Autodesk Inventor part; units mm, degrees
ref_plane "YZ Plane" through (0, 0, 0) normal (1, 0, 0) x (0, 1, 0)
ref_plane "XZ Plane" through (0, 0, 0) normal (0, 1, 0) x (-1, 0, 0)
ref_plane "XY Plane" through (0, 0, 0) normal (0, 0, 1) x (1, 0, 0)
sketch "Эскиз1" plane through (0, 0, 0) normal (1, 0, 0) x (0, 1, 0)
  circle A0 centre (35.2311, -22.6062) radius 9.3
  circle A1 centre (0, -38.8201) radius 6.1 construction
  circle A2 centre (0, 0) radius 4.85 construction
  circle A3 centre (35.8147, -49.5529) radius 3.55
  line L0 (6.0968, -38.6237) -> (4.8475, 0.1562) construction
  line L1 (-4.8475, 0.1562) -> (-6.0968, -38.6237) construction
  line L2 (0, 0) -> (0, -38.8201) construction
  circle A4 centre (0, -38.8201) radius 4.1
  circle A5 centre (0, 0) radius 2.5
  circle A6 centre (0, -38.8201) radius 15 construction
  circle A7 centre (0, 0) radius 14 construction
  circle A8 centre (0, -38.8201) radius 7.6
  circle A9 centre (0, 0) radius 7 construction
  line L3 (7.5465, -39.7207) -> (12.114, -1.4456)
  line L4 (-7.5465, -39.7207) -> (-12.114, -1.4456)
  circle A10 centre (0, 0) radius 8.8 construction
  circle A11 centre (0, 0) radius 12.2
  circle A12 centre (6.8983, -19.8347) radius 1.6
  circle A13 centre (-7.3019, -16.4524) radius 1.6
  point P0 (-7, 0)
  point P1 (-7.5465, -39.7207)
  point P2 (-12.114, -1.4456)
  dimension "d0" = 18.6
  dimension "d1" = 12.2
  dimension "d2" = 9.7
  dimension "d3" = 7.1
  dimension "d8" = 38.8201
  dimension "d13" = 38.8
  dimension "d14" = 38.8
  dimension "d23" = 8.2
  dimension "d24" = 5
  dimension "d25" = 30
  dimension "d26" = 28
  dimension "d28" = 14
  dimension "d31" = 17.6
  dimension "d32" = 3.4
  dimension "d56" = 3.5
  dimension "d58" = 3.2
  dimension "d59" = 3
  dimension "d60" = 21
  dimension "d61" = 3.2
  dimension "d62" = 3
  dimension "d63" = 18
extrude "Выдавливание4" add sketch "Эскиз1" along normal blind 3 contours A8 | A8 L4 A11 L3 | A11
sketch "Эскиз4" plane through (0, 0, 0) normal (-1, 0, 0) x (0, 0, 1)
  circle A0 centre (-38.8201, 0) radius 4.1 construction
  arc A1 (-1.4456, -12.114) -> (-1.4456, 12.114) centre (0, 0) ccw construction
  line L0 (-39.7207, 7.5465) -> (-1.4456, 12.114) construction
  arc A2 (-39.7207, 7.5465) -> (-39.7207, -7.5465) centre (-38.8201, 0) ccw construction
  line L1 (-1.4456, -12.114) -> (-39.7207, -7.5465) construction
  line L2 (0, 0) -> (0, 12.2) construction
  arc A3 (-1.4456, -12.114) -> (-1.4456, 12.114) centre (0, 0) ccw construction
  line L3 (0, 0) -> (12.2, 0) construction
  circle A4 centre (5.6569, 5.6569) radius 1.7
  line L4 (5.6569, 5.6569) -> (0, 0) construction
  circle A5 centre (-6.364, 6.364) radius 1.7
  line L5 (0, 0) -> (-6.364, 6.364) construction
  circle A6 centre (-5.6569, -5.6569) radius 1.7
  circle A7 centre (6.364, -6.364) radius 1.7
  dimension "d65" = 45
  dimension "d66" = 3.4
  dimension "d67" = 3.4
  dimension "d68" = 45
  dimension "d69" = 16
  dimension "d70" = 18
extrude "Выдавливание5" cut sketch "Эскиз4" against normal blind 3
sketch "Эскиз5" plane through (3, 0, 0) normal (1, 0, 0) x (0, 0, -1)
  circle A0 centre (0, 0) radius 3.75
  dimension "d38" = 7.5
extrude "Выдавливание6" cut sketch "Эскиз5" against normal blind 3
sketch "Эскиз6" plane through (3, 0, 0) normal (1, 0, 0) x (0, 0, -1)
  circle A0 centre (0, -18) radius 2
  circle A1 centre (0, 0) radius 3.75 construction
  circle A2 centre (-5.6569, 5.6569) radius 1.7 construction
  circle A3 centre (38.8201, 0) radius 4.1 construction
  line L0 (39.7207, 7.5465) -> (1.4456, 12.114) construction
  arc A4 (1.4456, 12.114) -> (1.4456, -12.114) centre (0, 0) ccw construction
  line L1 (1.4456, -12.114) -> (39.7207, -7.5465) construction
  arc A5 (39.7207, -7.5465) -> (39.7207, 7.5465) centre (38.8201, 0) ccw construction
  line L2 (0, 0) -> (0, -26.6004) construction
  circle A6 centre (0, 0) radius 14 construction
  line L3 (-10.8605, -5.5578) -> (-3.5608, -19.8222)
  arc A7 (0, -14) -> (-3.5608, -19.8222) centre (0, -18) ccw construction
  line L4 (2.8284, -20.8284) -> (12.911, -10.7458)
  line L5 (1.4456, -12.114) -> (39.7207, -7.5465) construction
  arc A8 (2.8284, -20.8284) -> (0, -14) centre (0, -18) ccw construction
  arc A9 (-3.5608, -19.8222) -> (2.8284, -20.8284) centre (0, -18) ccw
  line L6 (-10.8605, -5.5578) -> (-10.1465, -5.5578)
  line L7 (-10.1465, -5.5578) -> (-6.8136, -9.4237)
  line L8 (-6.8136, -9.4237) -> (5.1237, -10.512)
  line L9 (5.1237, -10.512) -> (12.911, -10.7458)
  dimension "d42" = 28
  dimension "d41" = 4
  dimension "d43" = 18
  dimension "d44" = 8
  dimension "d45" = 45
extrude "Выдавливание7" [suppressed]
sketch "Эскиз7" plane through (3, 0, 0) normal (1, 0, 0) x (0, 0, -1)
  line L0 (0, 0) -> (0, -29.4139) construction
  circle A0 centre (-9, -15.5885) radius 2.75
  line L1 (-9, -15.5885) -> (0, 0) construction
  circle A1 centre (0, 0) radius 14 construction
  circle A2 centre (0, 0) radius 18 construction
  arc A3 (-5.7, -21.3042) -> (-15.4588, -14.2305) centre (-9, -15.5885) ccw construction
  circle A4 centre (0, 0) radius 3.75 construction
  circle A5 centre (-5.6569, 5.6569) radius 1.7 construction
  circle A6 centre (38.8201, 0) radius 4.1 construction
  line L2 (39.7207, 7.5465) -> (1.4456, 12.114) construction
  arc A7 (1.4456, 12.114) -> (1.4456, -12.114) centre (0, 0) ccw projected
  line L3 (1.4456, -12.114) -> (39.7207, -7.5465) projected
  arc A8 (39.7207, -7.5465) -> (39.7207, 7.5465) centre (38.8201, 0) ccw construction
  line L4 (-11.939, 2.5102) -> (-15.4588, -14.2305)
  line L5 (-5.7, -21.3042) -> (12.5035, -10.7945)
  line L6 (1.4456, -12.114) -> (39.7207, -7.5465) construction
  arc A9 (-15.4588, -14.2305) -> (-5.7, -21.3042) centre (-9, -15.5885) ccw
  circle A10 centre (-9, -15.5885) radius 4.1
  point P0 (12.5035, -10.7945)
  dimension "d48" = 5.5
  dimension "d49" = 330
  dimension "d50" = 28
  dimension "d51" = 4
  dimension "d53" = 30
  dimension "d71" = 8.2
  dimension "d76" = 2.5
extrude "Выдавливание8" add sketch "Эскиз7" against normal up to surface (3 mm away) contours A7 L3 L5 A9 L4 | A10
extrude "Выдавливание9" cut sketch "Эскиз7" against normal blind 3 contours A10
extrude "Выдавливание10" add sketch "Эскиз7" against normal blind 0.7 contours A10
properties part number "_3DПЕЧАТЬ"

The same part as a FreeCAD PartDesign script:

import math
import FreeCAD as App
import Part
import Sketcher
from FreeCAD import Vector

doc = App.newDocument("Part")
body = doc.addObject("PartDesign::Body", "Body")

# Sketch on YZ plane
sketch1 = body.newObject("Sketcher::SketchObject", "Sketch")
sketch1.AttachmentSupport = (doc.getObject("YZ_Plane"), [""])
sketch1.MapMode = "FlatFace"
sketch1.addGeometry([
    Part.ArcOfCircle(Part.Circle(Vector(0, -38.8, 0), Vector(0, 0, 1), 7.6), math.radians(-173), math.radians(-7)),  # 0
    Part.LineSegment(Vector(7.5, -39.7, 0), Vector(12.1, -1.4, 0)),  # 1
    Part.ArcOfCircle(Part.Circle(Vector(0, 0, 0), Vector(0, 0, 1), 12.2), math.radians(-7), math.radians(187)),  # 2
    Part.LineSegment(Vector(-12.1, -1.4, 0), Vector(-7.5, -39.7, 0)),  # 3
    Part.Circle(Vector(0, -38.8, 0), Vector(0, 0, 1), 4.1),  # 4
    Part.Circle(Vector(-7.3, -16.5, 0), Vector(0, 0, 1), 1.6),  # 5
    Part.Circle(Vector(6.9, -19.8, 0), Vector(0, 0, 1), 1.6),  # 6
    Part.Circle(Vector(0, 0, 0), Vector(0, 0, 1), 2.5),  # 7
], False)
sketch1.addConstraint([
    Sketcher.Constraint("Tangent", 0, 2, 1, 1),
    Sketcher.Constraint("Tangent", 1, 2, 2, 1),
    Sketcher.Constraint("Tangent", 2, 2, 3, 1),
    Sketcher.Constraint("Tangent", 3, 2, 0, 1),
    Sketcher.Constraint("Coincident", 2, 3, -1, 1),
    Sketcher.Constraint("Coincident", 7, 3, -1, 1),
    Sketcher.Constraint("Coincident", 4, 3, 0, 3),
    Sketcher.Constraint("Equal", 5, 6),
    Sketcher.Constraint("PointOnObject", 0, 3, -2),
    Sketcher.Constraint("Diameter", 7, 5.0),
    Sketcher.Constraint("Diameter", 4, 8.2),
    Sketcher.Constraint("Diameter", 5, 3.2),
    Sketcher.Constraint("Radius", 2, 12.2),
    Sketcher.Constraint("Radius", 0, 7.6),
    Sketcher.Constraint("DistanceY", 0, 3, -1, 1, 38.82),
    Sketcher.Constraint("DistanceX", 5, 3, -1, 1, 7.302),
    Sketcher.Constraint("DistanceY", 0, 2, 6, 3, 19.886),
    Sketcher.Constraint("DistanceY", 5, 3, -1, 1, 16.4524),
    Sketcher.Constraint("DistanceX", -1, 1, 6, 3, 6.8983),
])
pad1 = body.newObject("PartDesign::Pad", "Pad")
pad1.Profile = sketch1
pad1.Length = 3

# Sketch on YZ plane
sketch2 = body.newObject("Sketcher::SketchObject", "Sketch001")
sketch2.AttachmentSupport = (doc.getObject("YZ_Plane"), [""])
sketch2.MapMode = "FlatFace"
sketch2.addGeometry([
    Part.Circle(Vector(5.7, 5.7, 0), Vector(0, 0, 1), 1.7),
    Part.Circle(Vector(6.4, -6.4, 0), Vector(0, 0, 1), 1.7),
    Part.Circle(Vector(-5.7, -5.7, 0), Vector(0, 0, 1), 1.7),
    Part.Circle(Vector(-6.4, 6.4, 0), Vector(0, 0, 1), 1.7),
], False)
sketch2.addConstraint([
    Sketcher.Constraint("Equal", 0, 1),
    Sketcher.Constraint("Equal", 1, 2),
    Sketcher.Constraint("Equal", 2, 3),
    Sketcher.Constraint("Symmetric", 0, 3, 2, 3, -1, 1),
    Sketcher.Constraint("Symmetric", 1, 3, 3, 3, -1, 1),
    Sketcher.Constraint("Diameter", 0, 3.4),
    Sketcher.Constraint("DistanceX", -1, 1, 0, 3, 5.657),
    Sketcher.Constraint("DistanceY", -1, 1, 0, 3, 5.657),
    Sketcher.Constraint("DistanceX", -1, 1, 1, 3, 6.364),
    Sketcher.Constraint("DistanceY", 1, 3, -1, 1, 6.364),
])
pocket1 = body.newObject("PartDesign::Pocket", "Pocket")
pocket1.Profile = sketch2
pocket1.Length = 3
pocket1.Reversed = True

# Sketch on YZ plane
sketch3 = body.newObject("Sketcher::SketchObject", "Sketch002")
sketch3.AttachmentSupport = (doc.getObject("YZ_Plane"), [""])
sketch3.MapMode = "FlatFace"
sketch3.AttachmentOffset = App.Placement(Vector(0, 0, 3), App.Rotation())
sketch3.addGeometry(Part.Circle(Vector(0, 0, 0), Vector(0, 0, 1), 3.8), False)
sketch3.addConstraint([
    Sketcher.Constraint("Coincident", 0, 3, -1, 1),
    Sketcher.Constraint("Diameter", 0, 7.5),
])
pocket2 = body.newObject("PartDesign::Pocket", "Pocket001")
pocket2.Profile = sketch3
pocket2.Length = 3

# Sketch on YZ plane
sketch4 = body.newObject("Sketcher::SketchObject", "Sketch003")
sketch4.AttachmentSupport = (doc.getObject("YZ_Plane"), [""])
sketch4.MapMode = "FlatFace"
sketch4.AttachmentOffset = App.Placement(Vector(0, 0, 3), App.Rotation())
sketch4.addGeometry([
    Part.ArcOfCircle(Part.Circle(Vector(0, 0, 0), Vector(0, 0, 1), 12.199949), math.radians(78.126387), math.radians(186.805097)),  # 0
    Part.LineSegment(Vector(2.5102, 11.939, 0), Vector(-14.2305, 15.4588, 0)),  # 1
    Part.ArcOfCircle(Part.Circle(Vector(-15.5885, 9, 0), Vector(0, 0, 1), 6.599941), math.radians(78.126186), math.radians(210.000294)),  # 2
    Part.LineSegment(Vector(-21.3042, 5.7, 0), Vector(-10.7945, -12.5035, 0)),  # 3
    Part.LineSegment(Vector(-10.794424, -12.503491, 0), Vector(-12.114, -1.4456, 0)),  # 4
    Part.Circle(Vector(-15.5885, 9, 0), Vector(0, 0, 1), 2.75),  # 5
], False)
sketch4.addConstraint([
    Sketcher.Constraint("Coincident", 0, 1, 1, 1),
    Sketcher.Constraint("Coincident", 1, 2, 2, 1),
    Sketcher.Constraint("Coincident", 2, 2, 3, 1),
    Sketcher.Constraint("Coincident", 3, 2, 4, 1),
    Sketcher.Constraint("Coincident", 4, 2, 0, 2),
    Sketcher.Constraint("Coincident", 0, 3, -1, 1),
    Sketcher.Constraint("Coincident", 5, 3, 2, 3),
    Sketcher.Constraint("Diameter", 5, 5.5),
    Sketcher.Constraint("Radius", 0, 12.2),
    Sketcher.Constraint("Radius", 2, 6.6),
    Sketcher.Constraint("DistanceY", -1, 1, 2, 3, 9.0),
    Sketcher.Constraint("DistanceY", -1, 1, 2, 2, 5.7),
    Sketcher.Constraint("DistanceY", 0, 1, 1, 2, 3.52),
    Sketcher.Constraint("DistanceY", -1, 1, 0, 1, 11.939),
    Sketcher.Constraint("DistanceX", 4, 2, -1, 1, 12.114),
    Sketcher.Constraint("DistanceX", 2, 3, 3, 2, 4.794),
    Sketcher.Constraint("DistanceY", 3, 2, 4, 2, 11.058),
    Sketcher.Constraint("Distance", 1, 17.1067),
])
pad2 = body.newObject("PartDesign::Pad", "Pad001")
pad2.Profile = sketch4
pad2.Length = 3
pad2.Reversed = True

# Sketch on YZ plane
sketch5 = body.newObject("Sketcher::SketchObject", "Sketch004")
sketch5.AttachmentSupport = (doc.getObject("YZ_Plane"), [""])
sketch5.MapMode = "FlatFace"
sketch5.AttachmentOffset = App.Placement(Vector(0, 0, 3), App.Rotation())
sketch5.addGeometry([
    Part.Circle(Vector(-15.6, 9, 0), Vector(0, 0, 1), 4.1),
    Part.Circle(Vector(-15.6, 9, 0), Vector(0, 0, 1), 2.8),
], False)
sketch5.addConstraint([
    Sketcher.Constraint("Coincident", 1, 3, 0, 3),
    Sketcher.Constraint("Diameter", 0, 8.2),
    Sketcher.Constraint("Diameter", 1, 5.5),
    Sketcher.Constraint("DistanceY", -1, 1, 0, 3, 9.0),
    Sketcher.Constraint("DistanceX", 0, 3, -1, 1, 15.5885),
])
pocket3 = body.newObject("PartDesign::Pocket", "Pocket002")
pocket3.Profile = sketch5
pocket3.Length = 3

# Sketch on YZ plane
sketch6 = body.newObject("Sketcher::SketchObject", "Sketch005")
sketch6.AttachmentSupport = (doc.getObject("YZ_Plane"), [""])
sketch6.MapMode = "FlatFace"
sketch6.AttachmentOffset = App.Placement(Vector(0, 0, 3), App.Rotation())
sketch6.addGeometry([
    Part.Circle(Vector(-15.6, 9, 0), Vector(0, 0, 1), 4.1),
    Part.Circle(Vector(-15.6, 9, 0), Vector(0, 0, 1), 2.8),
], False)
sketch6.addConstraint([
    Sketcher.Constraint("Coincident", 1, 3, 0, 3),
    Sketcher.Constraint("Diameter", 0, 8.2),
    Sketcher.Constraint("Diameter", 1, 5.5),
    Sketcher.Constraint("DistanceY", -1, 1, 0, 3, 9.0),
    Sketcher.Constraint("DistanceX", 0, 3, -1, 1, 15.5885),
])
pad3 = body.newObject("PartDesign::Pad", "Pad002")
pad3.Profile = sketch6
pad3.Length = 0.7
pad3.Reversed = True

doc.recompute()
